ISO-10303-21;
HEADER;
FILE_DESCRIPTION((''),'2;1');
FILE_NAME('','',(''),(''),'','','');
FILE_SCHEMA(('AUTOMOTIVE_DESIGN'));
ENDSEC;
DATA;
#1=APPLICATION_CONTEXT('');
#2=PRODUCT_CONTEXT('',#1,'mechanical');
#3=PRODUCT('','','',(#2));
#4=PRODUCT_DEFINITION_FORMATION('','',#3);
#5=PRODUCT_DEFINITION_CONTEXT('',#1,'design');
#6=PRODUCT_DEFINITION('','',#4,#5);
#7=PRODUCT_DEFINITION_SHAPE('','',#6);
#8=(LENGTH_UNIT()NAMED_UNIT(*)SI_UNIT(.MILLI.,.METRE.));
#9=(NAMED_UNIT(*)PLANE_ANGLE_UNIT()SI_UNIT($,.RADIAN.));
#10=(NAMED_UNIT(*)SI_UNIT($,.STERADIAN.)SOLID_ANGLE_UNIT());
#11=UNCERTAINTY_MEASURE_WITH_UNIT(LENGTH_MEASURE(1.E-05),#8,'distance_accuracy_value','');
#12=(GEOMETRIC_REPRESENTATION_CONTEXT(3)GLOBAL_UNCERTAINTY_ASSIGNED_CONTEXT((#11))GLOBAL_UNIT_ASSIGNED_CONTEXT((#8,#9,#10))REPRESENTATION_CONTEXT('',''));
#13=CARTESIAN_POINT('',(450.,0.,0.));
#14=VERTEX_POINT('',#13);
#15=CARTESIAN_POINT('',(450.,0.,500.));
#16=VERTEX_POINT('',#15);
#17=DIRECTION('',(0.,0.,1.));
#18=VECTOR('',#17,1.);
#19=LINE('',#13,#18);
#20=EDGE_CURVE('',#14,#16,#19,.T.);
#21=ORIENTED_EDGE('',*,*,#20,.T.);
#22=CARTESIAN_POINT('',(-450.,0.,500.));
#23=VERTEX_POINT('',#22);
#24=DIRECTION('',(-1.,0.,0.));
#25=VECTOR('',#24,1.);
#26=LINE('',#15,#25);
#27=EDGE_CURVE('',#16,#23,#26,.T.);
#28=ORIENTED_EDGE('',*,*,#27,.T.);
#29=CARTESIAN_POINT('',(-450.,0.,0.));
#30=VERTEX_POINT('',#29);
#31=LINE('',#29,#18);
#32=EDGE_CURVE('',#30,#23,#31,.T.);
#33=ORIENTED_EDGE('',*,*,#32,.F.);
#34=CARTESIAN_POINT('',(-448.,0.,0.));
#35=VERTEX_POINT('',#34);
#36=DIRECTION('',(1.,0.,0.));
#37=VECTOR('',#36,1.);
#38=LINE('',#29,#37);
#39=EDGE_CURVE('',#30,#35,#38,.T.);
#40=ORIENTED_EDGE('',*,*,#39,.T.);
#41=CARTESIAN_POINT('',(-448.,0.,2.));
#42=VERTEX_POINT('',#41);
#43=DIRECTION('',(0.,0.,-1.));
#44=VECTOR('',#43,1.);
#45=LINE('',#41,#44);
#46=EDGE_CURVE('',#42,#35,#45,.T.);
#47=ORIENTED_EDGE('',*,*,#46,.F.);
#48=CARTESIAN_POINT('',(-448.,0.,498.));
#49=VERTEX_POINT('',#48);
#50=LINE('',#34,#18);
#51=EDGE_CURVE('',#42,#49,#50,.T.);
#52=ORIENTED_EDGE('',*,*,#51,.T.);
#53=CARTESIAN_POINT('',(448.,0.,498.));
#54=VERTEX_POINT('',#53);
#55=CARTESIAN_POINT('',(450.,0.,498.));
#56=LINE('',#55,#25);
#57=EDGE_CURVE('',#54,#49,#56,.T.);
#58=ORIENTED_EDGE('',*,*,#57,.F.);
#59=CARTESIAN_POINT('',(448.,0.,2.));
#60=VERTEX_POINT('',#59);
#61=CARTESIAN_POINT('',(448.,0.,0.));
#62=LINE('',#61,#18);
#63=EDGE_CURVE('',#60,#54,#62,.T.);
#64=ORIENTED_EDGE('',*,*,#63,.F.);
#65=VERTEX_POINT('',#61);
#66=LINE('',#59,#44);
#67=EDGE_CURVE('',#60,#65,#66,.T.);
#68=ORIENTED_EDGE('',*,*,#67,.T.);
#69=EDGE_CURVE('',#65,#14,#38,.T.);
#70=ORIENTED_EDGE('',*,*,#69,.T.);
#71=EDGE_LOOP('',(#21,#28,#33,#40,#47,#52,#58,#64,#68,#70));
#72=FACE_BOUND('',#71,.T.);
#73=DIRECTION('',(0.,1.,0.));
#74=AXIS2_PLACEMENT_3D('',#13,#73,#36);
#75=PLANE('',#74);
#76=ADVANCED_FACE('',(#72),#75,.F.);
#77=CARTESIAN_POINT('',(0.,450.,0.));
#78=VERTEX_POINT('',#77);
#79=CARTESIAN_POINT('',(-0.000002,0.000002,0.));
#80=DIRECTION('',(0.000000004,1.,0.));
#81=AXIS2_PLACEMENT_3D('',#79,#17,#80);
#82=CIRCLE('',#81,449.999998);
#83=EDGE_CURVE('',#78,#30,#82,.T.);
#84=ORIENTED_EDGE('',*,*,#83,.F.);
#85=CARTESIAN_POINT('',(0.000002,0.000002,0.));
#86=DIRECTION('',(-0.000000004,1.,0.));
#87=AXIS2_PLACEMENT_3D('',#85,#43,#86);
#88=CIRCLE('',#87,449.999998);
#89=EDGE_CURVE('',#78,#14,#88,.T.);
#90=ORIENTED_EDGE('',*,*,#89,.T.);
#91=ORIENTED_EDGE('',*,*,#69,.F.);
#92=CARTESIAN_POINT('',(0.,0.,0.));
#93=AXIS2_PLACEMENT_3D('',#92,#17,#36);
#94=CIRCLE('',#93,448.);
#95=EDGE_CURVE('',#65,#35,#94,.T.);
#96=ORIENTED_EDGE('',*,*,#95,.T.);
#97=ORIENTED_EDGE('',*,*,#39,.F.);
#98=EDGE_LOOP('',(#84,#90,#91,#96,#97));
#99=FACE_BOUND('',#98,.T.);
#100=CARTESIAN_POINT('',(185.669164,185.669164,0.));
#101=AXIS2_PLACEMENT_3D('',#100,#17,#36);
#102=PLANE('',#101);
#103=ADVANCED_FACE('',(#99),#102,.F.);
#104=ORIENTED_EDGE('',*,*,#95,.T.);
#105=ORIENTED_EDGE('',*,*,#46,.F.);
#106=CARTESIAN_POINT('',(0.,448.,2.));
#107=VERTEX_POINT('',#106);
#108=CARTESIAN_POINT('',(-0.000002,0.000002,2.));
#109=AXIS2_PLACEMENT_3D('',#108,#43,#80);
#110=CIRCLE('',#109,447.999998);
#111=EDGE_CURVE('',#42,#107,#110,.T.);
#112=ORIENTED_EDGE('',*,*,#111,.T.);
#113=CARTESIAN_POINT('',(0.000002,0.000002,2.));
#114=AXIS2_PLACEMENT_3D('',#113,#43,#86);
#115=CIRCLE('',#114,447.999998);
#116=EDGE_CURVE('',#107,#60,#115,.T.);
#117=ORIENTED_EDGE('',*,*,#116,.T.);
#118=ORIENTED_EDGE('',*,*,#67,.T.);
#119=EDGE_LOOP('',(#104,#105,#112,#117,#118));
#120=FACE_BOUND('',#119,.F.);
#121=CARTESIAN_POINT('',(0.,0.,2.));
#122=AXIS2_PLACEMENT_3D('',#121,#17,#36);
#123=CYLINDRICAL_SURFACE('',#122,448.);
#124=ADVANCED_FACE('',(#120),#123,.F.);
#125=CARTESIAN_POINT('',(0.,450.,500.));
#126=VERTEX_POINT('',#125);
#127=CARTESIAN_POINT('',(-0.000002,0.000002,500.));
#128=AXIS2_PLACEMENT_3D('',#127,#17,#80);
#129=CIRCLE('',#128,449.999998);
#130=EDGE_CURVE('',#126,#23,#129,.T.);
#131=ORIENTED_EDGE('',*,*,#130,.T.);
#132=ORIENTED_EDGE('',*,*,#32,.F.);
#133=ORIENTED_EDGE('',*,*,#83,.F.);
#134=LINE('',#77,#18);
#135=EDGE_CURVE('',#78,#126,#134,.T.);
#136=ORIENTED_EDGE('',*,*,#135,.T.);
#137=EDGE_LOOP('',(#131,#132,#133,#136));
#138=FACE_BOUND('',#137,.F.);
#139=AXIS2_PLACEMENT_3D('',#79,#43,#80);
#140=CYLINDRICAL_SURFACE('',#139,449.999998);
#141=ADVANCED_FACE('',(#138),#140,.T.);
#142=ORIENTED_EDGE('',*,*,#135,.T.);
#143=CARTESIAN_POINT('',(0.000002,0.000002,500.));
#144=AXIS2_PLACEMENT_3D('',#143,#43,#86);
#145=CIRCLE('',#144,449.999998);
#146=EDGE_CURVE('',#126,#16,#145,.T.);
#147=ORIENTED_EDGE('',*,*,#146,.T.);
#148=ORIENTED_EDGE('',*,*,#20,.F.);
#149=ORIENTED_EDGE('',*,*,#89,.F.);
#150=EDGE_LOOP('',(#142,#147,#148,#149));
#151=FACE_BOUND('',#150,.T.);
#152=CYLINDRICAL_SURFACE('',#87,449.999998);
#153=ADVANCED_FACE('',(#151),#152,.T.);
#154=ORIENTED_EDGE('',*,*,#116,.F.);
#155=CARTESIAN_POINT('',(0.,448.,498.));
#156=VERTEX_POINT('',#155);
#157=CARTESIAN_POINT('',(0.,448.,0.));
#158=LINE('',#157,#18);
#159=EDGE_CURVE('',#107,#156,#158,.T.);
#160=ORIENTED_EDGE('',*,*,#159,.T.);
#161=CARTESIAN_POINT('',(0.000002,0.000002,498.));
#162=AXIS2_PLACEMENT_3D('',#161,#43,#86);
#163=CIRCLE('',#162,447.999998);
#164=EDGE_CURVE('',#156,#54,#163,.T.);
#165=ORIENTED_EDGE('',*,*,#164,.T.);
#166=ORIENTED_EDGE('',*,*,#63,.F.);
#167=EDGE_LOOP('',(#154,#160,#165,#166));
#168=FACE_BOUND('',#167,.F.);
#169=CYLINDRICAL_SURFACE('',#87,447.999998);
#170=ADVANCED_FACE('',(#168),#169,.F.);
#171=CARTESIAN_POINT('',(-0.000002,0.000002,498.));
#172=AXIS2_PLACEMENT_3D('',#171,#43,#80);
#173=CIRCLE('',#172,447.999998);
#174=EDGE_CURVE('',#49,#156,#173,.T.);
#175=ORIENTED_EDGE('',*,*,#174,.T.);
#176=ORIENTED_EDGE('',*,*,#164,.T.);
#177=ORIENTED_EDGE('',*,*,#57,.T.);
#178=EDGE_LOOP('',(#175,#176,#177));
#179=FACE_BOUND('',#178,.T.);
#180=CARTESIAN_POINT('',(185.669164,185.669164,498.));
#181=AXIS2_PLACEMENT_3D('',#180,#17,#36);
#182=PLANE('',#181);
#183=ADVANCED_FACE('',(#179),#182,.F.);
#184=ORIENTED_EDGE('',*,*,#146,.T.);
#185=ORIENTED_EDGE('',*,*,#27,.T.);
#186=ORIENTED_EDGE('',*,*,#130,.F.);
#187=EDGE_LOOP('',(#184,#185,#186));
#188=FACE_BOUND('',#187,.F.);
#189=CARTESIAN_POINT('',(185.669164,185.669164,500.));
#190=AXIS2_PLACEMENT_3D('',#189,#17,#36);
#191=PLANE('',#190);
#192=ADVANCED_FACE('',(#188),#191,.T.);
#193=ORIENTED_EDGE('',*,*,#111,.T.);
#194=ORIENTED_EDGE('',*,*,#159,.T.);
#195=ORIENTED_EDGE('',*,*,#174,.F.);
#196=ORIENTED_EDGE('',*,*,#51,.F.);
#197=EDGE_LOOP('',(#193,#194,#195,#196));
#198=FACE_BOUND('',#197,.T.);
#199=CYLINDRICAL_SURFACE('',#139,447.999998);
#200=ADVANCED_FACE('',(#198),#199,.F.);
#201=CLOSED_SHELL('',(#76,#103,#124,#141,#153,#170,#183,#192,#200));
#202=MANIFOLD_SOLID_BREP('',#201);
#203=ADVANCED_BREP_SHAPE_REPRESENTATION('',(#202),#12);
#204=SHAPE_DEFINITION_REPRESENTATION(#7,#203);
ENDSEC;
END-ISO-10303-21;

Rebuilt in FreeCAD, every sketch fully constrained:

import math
import FreeCAD as App
import Part
import Sketcher
from FreeCAD import Vector
Q = App.Units.Quantity


def faces_at(feature, points):
    """Names of the faces that lie closest to the given points."""
    faces = feature.Shape.Faces
    near = lambda p: min(range(len(faces)), key=lambda i: faces[i].distToShape(Part.Vertex(*p))[0])
    return sorted({f"Face{near(p) + 1}" for p in points})

doc = App.newDocument("Part")
body = doc.addObject("PartDesign::Body", "Body")

# Sketch on XY plane
sketch1 = doc.addObject("Sketcher::SketchObject", "Sketch")
body.addObject(sketch1)
sketch1.AttachmentSupport = (doc.XY_Plane, [""])
sketch1.MapMode = "FlatFace"
sketch1.addGeometry([
    Part.LineSegment(Vector(-450, 0, 0), Vector(0, 0, 0)),
    Part.LineSegment(Vector(0, 0, 0), Vector(0, 450, 0)),
    Part.ArcOfCircle(Part.Circle(Vector(-0.000002, 0.000002, 0), Vector(0, 0, 1), 449.999998), math.radians(90), math.radians(180)),
], False)
sketch1.addConstraint([
    Sketcher.Constraint("Coincident", 0, 2, 1, 1),
    Sketcher.Constraint("Coincident", 1, 2, 2, 1),
    Sketcher.Constraint("Coincident", 2, 2, 0, 1),
    Sketcher.Constraint("Horizontal", 0),
    Sketcher.Constraint("Vertical", 1),
    Sketcher.Constraint("Coincident", 2, 3, -1, 1),
    Sketcher.Constraint("Coincident", 0, 2, -1, 1),
    Sketcher.Constraint("Radius", 2, Q("449.999998 mm")),
])
pad1 = doc.addObject("PartDesign::Pad", "Pad")
body.addObject(pad1)
pad1.Profile = sketch1
pad1.Length = 500
body2 = doc.addObject("PartDesign::Body", "Body001")
doc.recompute()

body2.BaseFeature = body
doc.recompute()

mirroring = doc.addObject("Part::Mirroring", "Mirroring")
mirroring.Source = body
mirroring.Base = Vector(0, 0, 0)
mirroring.Normal = Vector(1, 0, 0)
body3 = doc.addObject("PartDesign::Body", "Body002")
body3.BaseFeature = mirroring
boolean = doc.addObject("PartDesign::Boolean", "Boolean")
body2.addObject(boolean)
boolean.Type = "Fuse"
boolean.addObjects([body3])
doc.recompute()

thickness = doc.addObject("PartDesign::Thickness", "Thickness")
body2.addObject(thickness)
thickness.Base = (boolean, faces_at(boolean, [(0, 0, 250)]))
thickness.Value = 2
thickness.Reversed = True
thickness.Join = "Arc"

# Sketch on XY plane
sketch2 = doc.addObject("Sketcher::SketchObject", "Sketch001")
body2.addObject(sketch2)
sketch2.AttachmentSupport = (doc.getObject("XY_Plane001"), [""])
sketch2.MapMode = "FlatFace"
sketch2.AttachmentOffset = App.Placement(Vector(0, 0, 2), App.Rotation())
sketch2.addGeometry([
    Part.ArcOfCircle(Part.Circle(Vector(0, 0, 0), Vector(0, 0, 1), 448), math.radians(0), math.radians(180)),
    Part.LineSegment(Vector(-448, 0, 0), Vector(448, 0, 0)),
], False)
sketch2.addConstraint([
    Sketcher.Constraint("Coincident", 0, 1, 1, 2),
    Sketcher.Constraint("Coincident", 1, 1, 0, 2),
    Sketcher.Constraint("Horizontal", 1),
    Sketcher.Constraint("Coincident", 0, 3, -1, 1),
    Sketcher.Constraint("PointOnObject", 1, 1, -1),
    Sketcher.Constraint("Radius", 0, Q("448 mm")),
])
pocket1 = doc.addObject("PartDesign::Pocket", "Pocket")
body2.addObject(pocket1)
pocket1.Profile = sketch2
pocket1.Type = "ThroughAll"
mirroring.Visibility = False

doc.recompute()
